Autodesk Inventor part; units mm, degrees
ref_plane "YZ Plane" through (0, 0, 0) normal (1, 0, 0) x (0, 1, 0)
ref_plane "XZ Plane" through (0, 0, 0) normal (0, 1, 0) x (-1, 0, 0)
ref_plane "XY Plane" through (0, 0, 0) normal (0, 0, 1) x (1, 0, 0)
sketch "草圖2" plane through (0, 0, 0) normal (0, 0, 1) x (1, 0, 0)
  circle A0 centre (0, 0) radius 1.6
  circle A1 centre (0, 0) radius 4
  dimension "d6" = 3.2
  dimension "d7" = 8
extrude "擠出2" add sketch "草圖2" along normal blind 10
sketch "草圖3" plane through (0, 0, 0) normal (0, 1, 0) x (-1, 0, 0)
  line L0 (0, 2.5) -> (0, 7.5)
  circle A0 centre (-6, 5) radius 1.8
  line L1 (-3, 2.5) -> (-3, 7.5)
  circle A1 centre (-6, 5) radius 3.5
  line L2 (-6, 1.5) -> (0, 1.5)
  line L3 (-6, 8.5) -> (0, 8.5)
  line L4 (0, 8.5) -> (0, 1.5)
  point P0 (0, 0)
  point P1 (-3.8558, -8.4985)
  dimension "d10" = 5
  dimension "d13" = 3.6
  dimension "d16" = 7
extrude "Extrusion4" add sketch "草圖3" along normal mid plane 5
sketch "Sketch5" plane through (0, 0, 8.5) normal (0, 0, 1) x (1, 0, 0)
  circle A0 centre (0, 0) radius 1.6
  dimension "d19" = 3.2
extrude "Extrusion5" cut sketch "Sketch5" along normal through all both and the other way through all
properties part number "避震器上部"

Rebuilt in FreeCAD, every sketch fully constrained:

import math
import FreeCAD as App
import Part
import Sketcher

V = App.Vector

doc = App.newDocument("Part")
body = doc.addObject("PartDesign::Body", "Body")

# Sketch on XY plane
sketch1 = body.newObject("Sketcher::SketchObject", "Sketch")
sketch1.AttachmentSupport = (doc.getObject("XY_Plane"), [""])
sketch1.MapMode = "FlatFace"
sketch1.addGeometry([
    Part.Circle(V(0, 0, 0), V(0, 0, 1), 4),
    Part.Circle(V(0, 0, 0), V(0, 0, 1), 1.6),
], False)
sketch1.addConstraint([
    Sketcher.Constraint("Coincident", 0, 3, -1, 1),
    Sketcher.Constraint("Coincident", 1, 3, -1, 1),
    Sketcher.Constraint("Diameter", 0, 8.0),
    Sketcher.Constraint("Diameter", 1, 3.2),
])
pad1 = body.newObject("PartDesign::Pad", "Pad")
pad1.Profile = sketch1
pad1.Length = 10

# Sketch on XZ plane
sketch2 = body.newObject("Sketcher::SketchObject", "Sketch001")
sketch2.AttachmentSupport = (doc.getObject("XZ_Plane"), [""])
sketch2.MapMode = "FlatFace"
sketch2.addGeometry([
    Part.LineSegment(V(0, 1.5, 0), V(0, 8.5, 0)),  # 0
    Part.LineSegment(V(0, 8.5, 0), V(6, 8.5, 0)),  # 1
    Part.ArcOfCircle(Part.Circle(V(6, 5, 0), V(0, 0, 1), 3.5), math.radians(-90), math.radians(90)),  # 2
    Part.LineSegment(V(6, 1.5, 0), V(0, 1.5, 0)),  # 3
    Part.Circle(V(6, 5, 0), V(0, 0, 1), 1.8),  # 4
], False)
sketch2.addConstraint([
    Sketcher.Constraint("Coincident", 0, 2, 1, 1),
    Sketcher.Constraint("Tangent", 1, 2, 2, 2),
    Sketcher.Constraint("Tangent", 2, 1, 3, 1),
    Sketcher.Constraint("Coincident", 3, 2, 0, 1),
    Sketcher.Constraint("Vertical", 0),
    Sketcher.Constraint("Horizontal", 1),
    Sketcher.Constraint("Horizontal", 3),
    Sketcher.Constraint("Coincident", 4, 3, 2, 3),
    Sketcher.Constraint("PointOnObject", 0, 2, -2),
    Sketcher.Constraint("Diameter", 4, 3.6),
    Sketcher.Constraint("Radius", 2, 3.5),
    Sketcher.Constraint("DistanceY", -1, 1, 2, 3, 5.0),
    Sketcher.Constraint("DistanceX", 1, 1, 1, 2, 6.0),
])
pad2 = body.newObject("PartDesign::Pad", "Pad001")
pad2.Profile = sketch2
pad2.Length = 5
pad2.Midplane = True

# Sketch on XY plane
sketch3 = body.newObject("Sketcher::SketchObject", "Sketch002")
sketch3.AttachmentSupport = (doc.getObject("XY_Plane"), [""])
sketch3.MapMode = "FlatFace"
sketch3.AttachmentOffset = App.Placement(V(0, 0, 8.5), App.Rotation())
sketch3.addGeometry(Part.Circle(V(0, 0, 0), V(0, 0, 1), 1.6), False)
sketch3.addConstraint([
    Sketcher.Constraint("Coincident", 0, 3, -1, 1),
    Sketcher.Constraint("Diameter", 0, 3.2),
])
pocket1 = body.newObject("PartDesign::Pocket", "Pocket")
pocket1.Profile = sketch3
pocket1.Type = "ThroughAll"
pocket1.Midplane = True

doc.recompute()
